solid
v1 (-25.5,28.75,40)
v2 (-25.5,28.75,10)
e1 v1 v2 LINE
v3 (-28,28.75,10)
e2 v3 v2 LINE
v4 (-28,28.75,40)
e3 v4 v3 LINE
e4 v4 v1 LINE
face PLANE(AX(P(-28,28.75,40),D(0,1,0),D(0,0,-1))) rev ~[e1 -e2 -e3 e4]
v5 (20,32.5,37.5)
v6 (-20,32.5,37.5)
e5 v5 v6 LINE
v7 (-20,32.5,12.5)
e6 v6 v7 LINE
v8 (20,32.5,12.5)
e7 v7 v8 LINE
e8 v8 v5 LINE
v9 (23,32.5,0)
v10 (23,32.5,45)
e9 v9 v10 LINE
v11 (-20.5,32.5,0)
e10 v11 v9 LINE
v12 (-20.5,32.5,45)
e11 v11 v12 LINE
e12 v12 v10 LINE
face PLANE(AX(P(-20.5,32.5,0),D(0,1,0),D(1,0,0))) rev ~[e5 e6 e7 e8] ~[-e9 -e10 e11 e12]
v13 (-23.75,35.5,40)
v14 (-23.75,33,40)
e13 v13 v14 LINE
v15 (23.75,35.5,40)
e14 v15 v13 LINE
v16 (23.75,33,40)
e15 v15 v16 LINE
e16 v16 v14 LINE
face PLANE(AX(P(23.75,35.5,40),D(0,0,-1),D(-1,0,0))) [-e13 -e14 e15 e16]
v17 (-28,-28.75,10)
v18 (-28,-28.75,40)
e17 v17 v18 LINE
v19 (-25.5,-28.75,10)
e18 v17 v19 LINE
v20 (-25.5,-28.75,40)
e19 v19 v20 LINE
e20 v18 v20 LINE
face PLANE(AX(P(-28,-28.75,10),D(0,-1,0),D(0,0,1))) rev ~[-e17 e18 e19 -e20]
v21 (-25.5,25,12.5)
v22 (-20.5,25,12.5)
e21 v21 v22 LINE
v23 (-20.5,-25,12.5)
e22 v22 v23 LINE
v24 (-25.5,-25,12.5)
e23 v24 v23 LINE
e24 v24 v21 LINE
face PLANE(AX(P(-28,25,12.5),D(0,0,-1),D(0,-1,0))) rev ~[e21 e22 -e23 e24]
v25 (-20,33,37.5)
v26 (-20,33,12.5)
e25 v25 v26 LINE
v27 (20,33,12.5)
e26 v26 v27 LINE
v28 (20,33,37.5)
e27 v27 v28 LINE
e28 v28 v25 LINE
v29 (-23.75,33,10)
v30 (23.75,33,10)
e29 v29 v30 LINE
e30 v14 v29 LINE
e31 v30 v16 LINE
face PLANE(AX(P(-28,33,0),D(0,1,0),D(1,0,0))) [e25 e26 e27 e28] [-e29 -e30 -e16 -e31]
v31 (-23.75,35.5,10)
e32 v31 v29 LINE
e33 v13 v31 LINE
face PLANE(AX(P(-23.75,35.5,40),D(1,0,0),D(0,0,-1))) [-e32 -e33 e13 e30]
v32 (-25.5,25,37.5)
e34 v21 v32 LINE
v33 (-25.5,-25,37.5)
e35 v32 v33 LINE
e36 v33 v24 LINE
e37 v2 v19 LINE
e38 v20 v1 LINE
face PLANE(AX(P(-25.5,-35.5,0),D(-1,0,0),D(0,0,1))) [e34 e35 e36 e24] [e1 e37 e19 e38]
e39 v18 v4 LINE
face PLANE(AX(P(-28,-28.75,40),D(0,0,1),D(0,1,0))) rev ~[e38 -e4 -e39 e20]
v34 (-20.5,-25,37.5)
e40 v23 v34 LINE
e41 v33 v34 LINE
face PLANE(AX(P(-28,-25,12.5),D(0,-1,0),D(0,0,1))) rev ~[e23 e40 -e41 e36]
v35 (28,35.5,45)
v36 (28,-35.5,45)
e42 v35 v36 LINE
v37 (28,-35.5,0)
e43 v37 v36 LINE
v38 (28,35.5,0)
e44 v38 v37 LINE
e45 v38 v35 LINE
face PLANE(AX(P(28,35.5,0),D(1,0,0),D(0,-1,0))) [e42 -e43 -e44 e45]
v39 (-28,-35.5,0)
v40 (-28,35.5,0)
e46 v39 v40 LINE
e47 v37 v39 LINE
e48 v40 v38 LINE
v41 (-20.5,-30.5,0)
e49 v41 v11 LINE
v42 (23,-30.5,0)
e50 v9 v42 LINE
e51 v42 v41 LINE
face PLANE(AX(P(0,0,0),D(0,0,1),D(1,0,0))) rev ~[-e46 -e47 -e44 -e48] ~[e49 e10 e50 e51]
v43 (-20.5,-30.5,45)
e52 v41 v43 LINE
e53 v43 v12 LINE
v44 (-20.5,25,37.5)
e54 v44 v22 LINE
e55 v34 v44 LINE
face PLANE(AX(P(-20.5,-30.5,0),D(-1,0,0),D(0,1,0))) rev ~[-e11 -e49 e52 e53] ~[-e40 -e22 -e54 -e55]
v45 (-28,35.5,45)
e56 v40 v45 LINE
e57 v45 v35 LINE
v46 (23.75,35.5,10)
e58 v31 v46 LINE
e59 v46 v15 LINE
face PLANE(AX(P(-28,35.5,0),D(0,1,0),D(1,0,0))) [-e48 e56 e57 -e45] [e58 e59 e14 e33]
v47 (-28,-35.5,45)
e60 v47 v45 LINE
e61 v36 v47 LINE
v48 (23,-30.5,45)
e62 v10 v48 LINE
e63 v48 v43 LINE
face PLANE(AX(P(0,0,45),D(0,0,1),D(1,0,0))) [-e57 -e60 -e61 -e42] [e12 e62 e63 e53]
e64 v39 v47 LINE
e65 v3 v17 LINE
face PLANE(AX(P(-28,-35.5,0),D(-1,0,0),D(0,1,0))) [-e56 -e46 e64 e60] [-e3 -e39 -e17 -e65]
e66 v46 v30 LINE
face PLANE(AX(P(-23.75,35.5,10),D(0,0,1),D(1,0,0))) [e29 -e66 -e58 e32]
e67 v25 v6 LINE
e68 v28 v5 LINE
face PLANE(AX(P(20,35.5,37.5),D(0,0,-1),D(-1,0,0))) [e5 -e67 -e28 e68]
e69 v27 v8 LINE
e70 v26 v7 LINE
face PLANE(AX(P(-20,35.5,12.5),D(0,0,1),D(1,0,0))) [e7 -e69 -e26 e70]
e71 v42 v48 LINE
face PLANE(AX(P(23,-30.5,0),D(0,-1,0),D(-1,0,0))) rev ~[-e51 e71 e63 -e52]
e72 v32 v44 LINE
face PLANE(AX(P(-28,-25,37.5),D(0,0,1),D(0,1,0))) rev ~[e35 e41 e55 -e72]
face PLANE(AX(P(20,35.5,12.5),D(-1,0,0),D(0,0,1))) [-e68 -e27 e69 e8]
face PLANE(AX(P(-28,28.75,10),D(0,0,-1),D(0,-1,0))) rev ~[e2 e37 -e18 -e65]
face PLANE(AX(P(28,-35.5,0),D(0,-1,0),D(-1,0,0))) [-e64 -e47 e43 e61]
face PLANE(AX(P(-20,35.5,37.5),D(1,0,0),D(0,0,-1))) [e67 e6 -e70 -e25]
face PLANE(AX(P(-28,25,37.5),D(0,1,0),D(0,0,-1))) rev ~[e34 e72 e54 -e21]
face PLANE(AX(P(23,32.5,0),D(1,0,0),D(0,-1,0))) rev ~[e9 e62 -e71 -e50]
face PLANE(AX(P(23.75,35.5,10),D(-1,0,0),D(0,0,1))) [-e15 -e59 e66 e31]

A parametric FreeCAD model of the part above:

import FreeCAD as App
import Part
import Sketcher
Q = App.Units.Quantity

doc = App.newDocument("Part")
body = doc.addObject("PartDesign::Body", "Body")

# Sketch on XY plane
sketch1 = body.newObject("Sketcher::SketchObject", "Sketch")
sketch1.AttachmentSupport = (doc.getObject("XY_Plane"), [""])
sketch1.MapMode = "FlatFace"
sketch1.addGeometry([
    Part.LineSegment(App.Vector(28, 36, 0), App.Vector(-28, 36, 0)),  # 0
    Part.LineSegment(App.Vector(-28, 36, 0), App.Vector(-28, -36, 0)),  # 1
    Part.LineSegment(App.Vector(-28, -36, 0), App.Vector(28, -36, 0)),  # 2
    Part.LineSegment(App.Vector(28, -36, 0), App.Vector(28, 36, 0)),  # 3
    Part.LineSegment(App.Vector(-20, -30, 0), App.Vector(-20, 32, 0)),  # 4
    Part.LineSegment(App.Vector(-20, 32, 0), App.Vector(23, 32, 0)),  # 5
    Part.LineSegment(App.Vector(23, 32, 0), App.Vector(23, -30, 0)),  # 6
    Part.LineSegment(App.Vector(23, -30, 0), App.Vector(-20, -30, 0)),  # 7
], False)
sketch1.addConstraint([
    Sketcher.Constraint("Coincident", 0, 2, 1, 1),
    Sketcher.Constraint("Coincident", 1, 2, 2, 1),
    Sketcher.Constraint("Coincident", 2, 2, 3, 1),
    Sketcher.Constraint("Coincident", 3, 2, 0, 1),
    Sketcher.Constraint("Coincident", 4, 2, 5, 1),
    Sketcher.Constraint("Coincident", 5, 2, 6, 1),
    Sketcher.Constraint("Coincident", 6, 2, 7, 1),
    Sketcher.Constraint("Coincident", 7, 2, 4, 1),
    Sketcher.Constraint("Horizontal", 0),
    Sketcher.Constraint("Vertical", 1),
    Sketcher.Constraint("Horizontal", 2),
    Sketcher.Constraint("Vertical", 3),
    Sketcher.Constraint("Vertical", 4),
    Sketcher.Constraint("Horizontal", 5),
    Sketcher.Constraint("Vertical", 6),
    Sketcher.Constraint("Horizontal", 7),
    Sketcher.Constraint("Symmetric", 0, 2, 2, 2, -1, 1),
    Sketcher.Constraint("DistanceX", 0, 2, 0, 1, Q("56 mm")),
    Sketcher.Constraint("DistanceY", 1, 2, 1, 1, Q("71 mm")),
    Sketcher.Constraint("DistanceY", 4, 2, 0, 2, Q("3 mm")),
    Sketcher.Constraint("DistanceX", 5, 2, 3, 2, Q("5 mm")),
    Sketcher.Constraint("DistanceY", 2, 2, 6, 2, Q("5 mm")),
    Sketcher.Constraint("DistanceX", 0, 2, 4, 2, Q("7.5 mm")),
])
pad1 = body.newObject("PartDesign::Pad", "Pad")
pad1.Profile = sketch1
pad1.Length = 45

# Sketch on YZ plane
sketch2 = body.newObject("Sketcher::SketchObject", "Sketch001")
sketch2.AttachmentSupport = (doc.getObject("YZ_Plane"), [""])
sketch2.MapMode = "FlatFace"
sketch2.AttachmentOffset = App.Placement(App.Vector(0, 0, -28), App.Rotation())
sketch2.addGeometry([
    Part.LineSegment(App.Vector(-25, 38, 0), App.Vector(25, 38, 0)),
    Part.LineSegment(App.Vector(25, 38, 0), App.Vector(25, 12, 0)),
    Part.LineSegment(App.Vector(25, 12, 0), App.Vector(-25, 12, 0)),
    Part.LineSegment(App.Vector(-25, 12, 0), App.Vector(-25, 38, 0)),
], False)
sketch2.addConstraint([
    Sketcher.Constraint("Coincident", 0, 2, 1, 1),
    Sketcher.Constraint("Coincident", 1, 2, 2, 1),
    Sketcher.Constraint("Coincident", 2, 2, 3, 1),
    Sketcher.Constraint("Coincident", 3, 2, 0, 1),
    Sketcher.Constraint("Horizontal", 0),
    Sketcher.Constraint("Vertical", 1),
    Sketcher.Constraint("Horizontal", 2),
    Sketcher.Constraint("Vertical", 3),
    Sketcher.Constraint("DistanceX", 0, 1, 0, 2, Q("50 mm")),
    Sketcher.Constraint("DistanceY", 1, 2, 1, 1, Q("25 mm")),
    Sketcher.Constraint("DistanceX", -1, 1, 0, 2, Q("25 mm")),
    Sketcher.Constraint("DistanceY", -1, 1, 1, 2, Q("12.5 mm")),
])
pocket1 = body.newObject("PartDesign::Pocket", "Pocket")
pocket1.Profile = sketch2
pocket1.Length = 7.5
pocket1.Reversed = True

# Sketch on YZ plane
sketch3 = body.newObject("Sketcher::SketchObject", "Sketch002")
sketch3.AttachmentSupport = (doc.getObject("YZ_Plane"), [""])
sketch3.MapMode = "FlatFace"
sketch3.AttachmentOffset = App.Placement(App.Vector(0, 0, -28), App.Rotation())
sketch3.addGeometry([
    Part.LineSegment(App.Vector(-29, 40, 0), App.Vector(29, 40, 0)),
    Part.LineSegment(App.Vector(29, 40, 0), App.Vector(29, 10, 0)),
    Part.LineSegment(App.Vector(29, 10, 0), App.Vector(-29, 10, 0)),
    Part.LineSegment(App.Vector(-29, 10, 0), App.Vector(-29, 40, 0)),
], False)
sketch3.addConstraint([
    Sketcher.Constraint("Coincident", 0, 2, 1, 1),
    Sketcher.Constraint("Coincident", 1, 2, 2, 1),
    Sketcher.Constraint("Coincident", 2, 2, 3, 1),
    Sketcher.Constraint("Coincident", 3, 2, 0, 1),
    Sketcher.Constraint("Horizontal", 0),
    Sketcher.Constraint("Vertical", 1),
    Sketcher.Constraint("Horizontal", 2),
    Sketcher.Constraint("Vertical", 3),
    Sketcher.Constraint("DistanceY", 1, 2, 1, 1, Q("30 mm")),
    Sketcher.Constraint("DistanceX", 0, 1, 0, 2, Q("57.5 mm")),
    Sketcher.Constraint("DistanceY", -1, 1, 1, 2, Q("10 mm")),
    Sketcher.Constraint("DistanceX", -1, 1, 0, 2, Q("28.75 mm")),
])
pocket2 = body.newObject("PartDesign::Pocket", "Pocket001")
pocket2.Profile = sketch3
pocket2.Length = 2.5
pocket2.Reversed = True

# Sketch on XZ plane
sketch4 = body.newObject("Sketcher::SketchObject", "Sketch003")
sketch4.AttachmentSupport = (doc.getObject("XZ_Plane"), [""])
sketch4.MapMode = "FlatFace"
sketch4.AttachmentOffset = App.Placement(App.Vector(0, 0, -35.5), App.Rotation())
sketch4.addGeometry([
    Part.LineSegment(App.Vector(-24, 40, 0), App.Vector(24, 40, 0)),
    Part.LineSegment(App.Vector(24, 40, 0), App.Vector(24, 10, 0)),
    Part.LineSegment(App.Vector(24, 10, 0), App.Vector(-24, 10, 0)),
    Part.LineSegment(App.Vector(-24, 10, 0), App.Vector(-24, 40, 0)),
], False)
sketch4.addConstraint([
    Sketcher.Constraint("Coincident", 0, 2, 1, 1),
    Sketcher.Constraint("Coincident", 1, 2, 2, 1),
    Sketcher.Constraint("Coincident", 2, 2, 3, 1),
    Sketcher.Constraint("Coincident", 3, 2, 0, 1),
    Sketcher.Constraint("Horizontal", 0),
    Sketcher.Constraint("Vertical", 1),
    Sketcher.Constraint("Horizontal", 2),
    Sketcher.Constraint("Vertical", 3),
    Sketcher.Constraint("DistanceY", 1, 2, 1, 1, Q("30 mm")),
    Sketcher.Constraint("DistanceX", 0, 1, 0, 2, Q("47.5 mm")),
    Sketcher.Constraint("DistanceY", -1, 1, 1, 2, Q("10 mm")),
    Sketcher.Constraint("DistanceX", -1, 1, 0, 2, Q("23.75 mm")),
])
pocket3 = body.newObject("PartDesign::Pocket", "Pocket002")
pocket3.Profile = sketch4
pocket3.Length = 2.5
pocket3.Reversed = True

# Sketch on XZ plane
sketch5 = body.newObject("Sketcher::SketchObject", "Sketch004")
sketch5.AttachmentSupport = (doc.getObject("XZ_Plane"), [""])
sketch5.MapMode = "FlatFace"
sketch5.AttachmentOffset = App.Placement(App.Vector(0, 0, -35.5), App.Rotation())
sketch5.addGeometry([
    Part.LineSegment(App.Vector(-20, 38, 0), App.Vector(20, 38, 0)),
    Part.LineSegment(App.Vector(20, 38, 0), App.Vector(20, 12, 0)),
    Part.LineSegment(App.Vector(20, 12, 0), App.Vector(-20, 12, 0)),
    Part.LineSegment(App.Vector(-20, 12, 0), App.Vector(-20, 38, 0)),
], False)
sketch5.addConstraint([
    Sketcher.Constraint("Coincident", 0, 2, 1, 1),
    Sketcher.Constraint("Coincident", 1, 2, 2, 1),
    Sketcher.Constraint("Coincident", 2, 2, 3, 1),
    Sketcher.Constraint("Coincident", 3, 2, 0, 1),
    Sketcher.Constraint("Horizontal", 0),
    Sketcher.Constraint("Vertical", 1),
    Sketcher.Constraint("Horizontal", 2),
    Sketcher.Constraint("Vertical", 3),
    Sketcher.Constraint("DistanceX", 0, 1, 0, 2, Q("40 mm")),
    Sketcher.Constraint("DistanceY", 1, 2, 1, 1, Q("25 mm")),
    Sketcher.Constraint("DistanceX", -1, 1, 0, 2, Q("20 mm")),
    Sketcher.Constraint("DistanceY", -1, 1, 1, 2, Q("12.5 mm")),
])
pocket4 = body.newObject("PartDesign::Pocket", "Pocket003")
pocket4.Profile = sketch5
pocket4.Length = 3
pocket4.Reversed = True

doc.recompute()
